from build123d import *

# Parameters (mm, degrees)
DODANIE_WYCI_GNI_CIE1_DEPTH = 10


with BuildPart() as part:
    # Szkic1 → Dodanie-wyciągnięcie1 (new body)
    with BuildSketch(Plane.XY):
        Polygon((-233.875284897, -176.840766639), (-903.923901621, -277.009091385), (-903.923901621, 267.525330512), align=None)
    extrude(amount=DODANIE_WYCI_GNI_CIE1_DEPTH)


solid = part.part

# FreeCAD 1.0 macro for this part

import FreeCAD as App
import Part
import Sketcher
from FreeCAD import Vector
Q = App.Units.Quantity


def add_polygon(sketch, points):
    """Adds a closed chain of lines whose ends are joined by coincident constraints."""
    first, n = sketch.GeometryCount, len(points)
    for a, b in zip(points, points[1:] + points[:1]):
        sketch.addGeometry(Part.LineSegment(App.Vector(*a, 0), App.Vector(*b, 0)), False)
    for i in range(n):
        sketch.addConstraint(Sketcher.Constraint("Coincident", first + i, 2, first + (i + 1) % n, 1))

doc = App.newDocument("Part")
body = doc.addObject("PartDesign::Body", "Body")

# Sketch on XY plane
sketch1 = body.newObject("Sketcher::SketchObject", "Sketch")
sketch1.AttachmentSupport = (doc.getObject("XY_Plane"), [""])
sketch1.MapMode = "FlatFace"
add_polygon(sketch1, [(-903.923902, -277.009091), (-233.875285, -176.840767), (-903.923902, 267.525331)])  # lines 0-2
sketch1.addConstraint([
    Sketcher.Constraint("Vertical", 2),
    Sketcher.Constraint("DistanceY", 2, 2, 2, 1, Q("544.534422 mm")),
    Sketcher.Constraint("DistanceX", 1, 2, -1, 1, Q("903.923902 mm")),
    Sketcher.Constraint("DistanceY", -1, 1, 1, 2, Q("267.525331 mm")),
    Sketcher.Constraint("Distance", 0, Q("677.494533 mm")),
    Sketcher.Constraint("Distance", 1, Q("804.006453 mm")),
])
pad1 = body.newObject("PartDesign::Pad", "Pad")
pad1.Profile = sketch1
pad1.Length = 10

doc.recompute()
